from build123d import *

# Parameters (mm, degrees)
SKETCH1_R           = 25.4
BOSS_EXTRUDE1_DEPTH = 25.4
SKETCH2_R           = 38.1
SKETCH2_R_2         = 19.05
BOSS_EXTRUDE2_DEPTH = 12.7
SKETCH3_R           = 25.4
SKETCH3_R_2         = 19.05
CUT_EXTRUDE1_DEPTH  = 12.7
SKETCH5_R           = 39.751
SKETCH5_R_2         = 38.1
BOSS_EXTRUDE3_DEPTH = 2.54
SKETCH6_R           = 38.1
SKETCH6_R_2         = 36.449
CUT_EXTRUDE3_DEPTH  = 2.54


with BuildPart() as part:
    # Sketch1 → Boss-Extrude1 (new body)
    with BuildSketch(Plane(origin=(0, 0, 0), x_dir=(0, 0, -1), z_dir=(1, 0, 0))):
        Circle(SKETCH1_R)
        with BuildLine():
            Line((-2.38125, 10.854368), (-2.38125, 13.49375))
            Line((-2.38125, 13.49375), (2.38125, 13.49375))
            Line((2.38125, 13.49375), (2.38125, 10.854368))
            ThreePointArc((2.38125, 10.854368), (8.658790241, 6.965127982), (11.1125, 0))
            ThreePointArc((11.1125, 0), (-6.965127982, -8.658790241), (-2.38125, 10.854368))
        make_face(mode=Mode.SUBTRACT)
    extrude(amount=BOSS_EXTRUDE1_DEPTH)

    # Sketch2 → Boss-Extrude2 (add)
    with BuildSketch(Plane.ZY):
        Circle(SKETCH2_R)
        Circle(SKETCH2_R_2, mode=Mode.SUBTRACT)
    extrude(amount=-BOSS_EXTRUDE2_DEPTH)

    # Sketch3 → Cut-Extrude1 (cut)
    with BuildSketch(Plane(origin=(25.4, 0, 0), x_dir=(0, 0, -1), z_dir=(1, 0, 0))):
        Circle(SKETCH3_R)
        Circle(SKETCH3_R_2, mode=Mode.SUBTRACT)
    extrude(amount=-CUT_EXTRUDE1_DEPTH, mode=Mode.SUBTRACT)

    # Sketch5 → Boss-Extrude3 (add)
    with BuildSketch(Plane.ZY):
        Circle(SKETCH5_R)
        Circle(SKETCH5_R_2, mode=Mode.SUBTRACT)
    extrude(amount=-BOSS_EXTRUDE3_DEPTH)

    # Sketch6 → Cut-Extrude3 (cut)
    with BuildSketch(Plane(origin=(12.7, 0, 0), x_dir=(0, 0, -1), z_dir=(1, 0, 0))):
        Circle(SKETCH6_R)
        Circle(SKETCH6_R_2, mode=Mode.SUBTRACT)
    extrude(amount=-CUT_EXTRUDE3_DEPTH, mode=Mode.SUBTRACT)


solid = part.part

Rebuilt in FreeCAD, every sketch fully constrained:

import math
import FreeCAD as App
import Part
import Sketcher
from FreeCAD import Vector
Q = App.Units.Quantity

doc = App.newDocument("Part")
body = doc.addObject("PartDesign::Body", "Body")

# Sketch on YZ plane
sketch1 = body.newObject("Sketcher::SketchObject", "Sketch")
sketch1.AttachmentSupport = (doc.getObject("YZ_Plane"), [""])
sketch1.MapMode = "FlatFace"
sketch1.addGeometry(Part.Circle(Vector(0, 0, 0), Vector(0, 0, 1), 25.4), False)
sketch1.addGeometry(Part.ArcOfCircle(Part.Circle(Vector(0, 0, 0), Vector(0, 0, 1), 11.1125), math.radians(12.373625), math.radians(270)), False)
sketch1.addGeometry(Part.LineSegment(Vector(10.854368, 2.38125, 0), Vector(13.49375, 2.38125, 0)), False)
sketch1.addGeometry(Part.LineSegment(Vector(13.49375, 2.38125, 0), Vector(13.49375, -2.38125, 0)), False)
sketch1.addGeometry(Part.LineSegment(Vector(13.49375, -2.38125, 0), Vector(10.854368, -2.38125, 0)), False)
sketch1.addGeometry(Part.ArcOfCircle(Part.Circle(Vector(0, 0, 0), Vector(0, 0, 1), 11.1125), math.radians(-90), math.radians(-12.373625)), False)
sketch1.addConstraint(Sketcher.Constraint("Coincident", 1, 1, 2, 1))
sketch1.addConstraint(Sketcher.Constraint("Coincident", 2, 2, 3, 1))
sketch1.addConstraint(Sketcher.Constraint("Coincident", 3, 2, 4, 1))
sketch1.addConstraint(Sketcher.Constraint("Coincident", 4, 2, 5, 2))
sketch1.addConstraint(Sketcher.Constraint("Tangent", 5, 1, 1, 2))
sketch1.addConstraint(Sketcher.Constraint("Horizontal", 2))
sketch1.addConstraint(Sketcher.Constraint("Vertical", 3))
sketch1.addConstraint(Sketcher.Constraint("Horizontal", 4))
sketch1.addConstraint(Sketcher.Constraint("Coincident", 0, 3, -1, 1))
sketch1.addConstraint(Sketcher.Constraint("Coincident", 1, 3, -1, 1))
sketch1.addConstraint(Sketcher.Constraint("Equal", 1, 5))
sketch1.addConstraint(Sketcher.Constraint("PointOnObject", 5, 1, -2))
sketch1.addConstraint(Sketcher.Constraint("Vertical", 1, 1, 4, 2))
sketch1.addConstraint(Sketcher.Constraint("Diameter", 0, Q("2 in")))
sketch1.addConstraint(Sketcher.Constraint("Radius", 1, Q("0.4375 in")))
sketch1.addConstraint(Sketcher.Constraint("DistanceY", 3, 2, 3, 1, Q("0.1875 in")))
sketch1.addConstraint(Sketcher.Constraint("DistanceX", -1, 1, 2, 2, Q("0.53125 in")))
pad1 = body.newObject("PartDesign::Pad", "Pad")
pad1.Profile = sketch1
pad1.Length = Q("1 in")

# Sketch on YZ plane
sketch2 = body.newObject("Sketcher::SketchObject", "Sketch001")
sketch2.AttachmentSupport = (doc.getObject("YZ_Plane"), [""])
sketch2.MapMode = "FlatFace"
sketch2.addGeometry(Part.Circle(Vector(0, 0, 0), Vector(0, 0, 1), 38.1), False)
sketch2.addGeometry(Part.Circle(Vector(0, 0, 0), Vector(0, 0, 1), 19.05), False)
sketch2.addConstraint(Sketcher.Constraint("Coincident", 0, 3, -1, 1))
sketch2.addConstraint(Sketcher.Constraint("Coincident", 1, 3, -1, 1))
sketch2.addConstraint(Sketcher.Constraint("Diameter", 0, Q("3 in")))
sketch2.addConstraint(Sketcher.Constraint("Diameter", 1, Q("1.5 in")))
pad2 = body.newObject("PartDesign::Pad", "Pad001")
pad2.Profile = sketch2
pad2.Length = Q("0.5 in")

# Sketch on YZ plane
sketch3 = body.newObject("Sketcher::SketchObject", "Sketch002")
sketch3.AttachmentSupport = (doc.getObject("YZ_Plane"), [""])
sketch3.MapMode = "FlatFace"
sketch3.AttachmentOffset = App.Placement(Vector(0, 0, 1 * 25.4), App.Rotation())
sketch3.addGeometry(Part.Circle(Vector(0, 0, 0), Vector(0, 0, 1), 25.4), False)
sketch3.addGeometry(Part.Circle(Vector(0, 0, 0), Vector(0, 0, 1), 19.05), False)
sketch3.addConstraint(Sketcher.Constraint("Coincident", 0, 3, -1, 1))
sketch3.addConstraint(Sketcher.Constraint("Coincident", 1, 3, -1, 1))
sketch3.addConstraint(Sketcher.Constraint("Diameter", 0, Q("2 in")))
sketch3.addConstraint(Sketcher.Constraint("Diameter", 1, Q("1.5 in")))
pocket1 = body.newObject("PartDesign::Pocket", "Pocket")
pocket1.Profile = sketch3
pocket1.Length = Q("0.5 in")

# Sketch on YZ plane
sketch4 = body.newObject("Sketcher::SketchObject", "Sketch003")
sketch4.AttachmentSupport = (doc.getObject("YZ_Plane"), [""])
sketch4.MapMode = "FlatFace"
sketch4.addGeometry(Part.Circle(Vector(0, 0, 0), Vector(0, 0, 1), 39.751), False)
sketch4.addGeometry(Part.Circle(Vector(0, 0, 0), Vector(0, 0, 1), 38.1), False)
sketch4.addConstraint(Sketcher.Constraint("Coincident", 0, 3, -1, 1))
sketch4.addConstraint(Sketcher.Constraint("Coincident", 1, 3, -1, 1))
sketch4.addConstraint(Sketcher.Constraint("Diameter", 1, Q("3 in")))
sketch4.addConstraint(Sketcher.Constraint("Diameter", 0, Q("3.13 in")))
pad3 = body.newObject("PartDesign::Pad", "Pad002")
pad3.Profile = sketch4
pad3.Length = Q("0.1 in")

# Sketch on YZ plane
sketch5 = body.newObject("Sketcher::SketchObject", "Sketch004")
sketch5.AttachmentSupport = (doc.getObject("YZ_Plane"), [""])
sketch5.MapMode = "FlatFace"
sketch5.AttachmentOffset = App.Placement(Vector(0, 0, 0.5 * 25.4), App.Rotation())
sketch5.addGeometry(Part.Circle(Vector(0, 0, 0), Vector(0, 0, 1), 38.1), False)
sketch5.addGeometry(Part.Circle(Vector(0, 0, 0), Vector(0, 0, 1), 36.449), False)
sketch5.addConstraint(Sketcher.Constraint("Coincident", 0, 3, -1, 1))
sketch5.addConstraint(Sketcher.Constraint("Coincident", 1, 3, -1, 1))
sketch5.addConstraint(Sketcher.Constraint("Diameter", 0, Q("3 in")))
sketch5.addConstraint(Sketcher.Constraint("Diameter", 1, Q("2.87 in")))
pocket2 = body.newObject("PartDesign::Pocket", "Pocket001")
pocket2.Profile = sketch5
pocket2.Length = Q("0.1 in")

doc.recompute()
